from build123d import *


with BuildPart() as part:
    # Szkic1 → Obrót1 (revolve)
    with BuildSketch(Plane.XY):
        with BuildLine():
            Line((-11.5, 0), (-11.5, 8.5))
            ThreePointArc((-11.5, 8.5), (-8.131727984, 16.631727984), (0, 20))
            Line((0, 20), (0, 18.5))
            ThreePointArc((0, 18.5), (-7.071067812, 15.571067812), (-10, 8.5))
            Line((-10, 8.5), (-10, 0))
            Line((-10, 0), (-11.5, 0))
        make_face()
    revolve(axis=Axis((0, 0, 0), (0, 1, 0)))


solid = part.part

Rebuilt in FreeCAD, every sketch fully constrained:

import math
import FreeCAD as App
import Part
import Sketcher
from FreeCAD import Vector
Q = App.Units.Quantity

doc = App.newDocument("Part")
body = doc.addObject("PartDesign::Body", "Body")

sketch1 = body.newObject("Sketcher::SketchObject", "Sketch")
sketch1.AttachmentSupport = (doc.getObject("XY_Plane"), [""])
sketch1.MapMode = "FlatFace"
sketch1.addGeometry([
    Part.LineSegment(Vector(-11.5, 8.5, 0), Vector(-11.5, 0, 0)),
    Part.LineSegment(Vector(-11.5, 0, 0), Vector(-10, 0, 0)),
    Part.LineSegment(Vector(-10, 0, 0), Vector(-10, 8.5, 0)),
    Part.ArcOfCircle(Part.Circle(Vector(0, 8.5, 0), Vector(0, 0, 1), 10), math.radians(90), math.radians(180)),
    Part.LineSegment(Vector(0, 18.5, 0), Vector(0, 20, 0)),
    Part.ArcOfCircle(Part.Circle(Vector(0, 8.5, 0), Vector(0, 0, 1), 11.5), math.radians(90), math.radians(180)),
], False)
sketch1.addConstraint([
    Sketcher.Constraint("Coincident", 0, 2, 1, 1),
    Sketcher.Constraint("Coincident", 1, 2, 2, 1),
    Sketcher.Constraint("Tangent", 2, 2, 3, 2),
    Sketcher.Constraint("Coincident", 3, 1, 4, 1),
    Sketcher.Constraint("Coincident", 4, 2, 5, 1),
    Sketcher.Constraint("Tangent", 5, 2, 0, 1),
    Sketcher.Constraint("Vertical", 0),
    Sketcher.Constraint("Horizontal", 1),
    Sketcher.Constraint("Vertical", 2),
    Sketcher.Constraint("Vertical", 4),
    Sketcher.Constraint("Coincident", 5, 3, 3, 3),
    Sketcher.Constraint("PointOnObject", 3, 3, -2),
    Sketcher.Constraint("PointOnObject", 0, 2, -1),
    Sketcher.Constraint("PointOnObject", 3, 1, -2),
    Sketcher.Constraint("Radius", 3, Q("10 mm")),
    Sketcher.Constraint("Radius", 5, Q("11.5 mm")),
    Sketcher.Constraint("DistanceY", 0, 2, 0, 1, Q("8.5 mm")),
])
revolution = body.newObject("PartDesign::Revolution", "Revolution")
revolution.Profile = sketch1
revolution.ReferenceAxis = (sketch1, ["V_Axis"])
revolution.Angle = 360

doc.recompute()
